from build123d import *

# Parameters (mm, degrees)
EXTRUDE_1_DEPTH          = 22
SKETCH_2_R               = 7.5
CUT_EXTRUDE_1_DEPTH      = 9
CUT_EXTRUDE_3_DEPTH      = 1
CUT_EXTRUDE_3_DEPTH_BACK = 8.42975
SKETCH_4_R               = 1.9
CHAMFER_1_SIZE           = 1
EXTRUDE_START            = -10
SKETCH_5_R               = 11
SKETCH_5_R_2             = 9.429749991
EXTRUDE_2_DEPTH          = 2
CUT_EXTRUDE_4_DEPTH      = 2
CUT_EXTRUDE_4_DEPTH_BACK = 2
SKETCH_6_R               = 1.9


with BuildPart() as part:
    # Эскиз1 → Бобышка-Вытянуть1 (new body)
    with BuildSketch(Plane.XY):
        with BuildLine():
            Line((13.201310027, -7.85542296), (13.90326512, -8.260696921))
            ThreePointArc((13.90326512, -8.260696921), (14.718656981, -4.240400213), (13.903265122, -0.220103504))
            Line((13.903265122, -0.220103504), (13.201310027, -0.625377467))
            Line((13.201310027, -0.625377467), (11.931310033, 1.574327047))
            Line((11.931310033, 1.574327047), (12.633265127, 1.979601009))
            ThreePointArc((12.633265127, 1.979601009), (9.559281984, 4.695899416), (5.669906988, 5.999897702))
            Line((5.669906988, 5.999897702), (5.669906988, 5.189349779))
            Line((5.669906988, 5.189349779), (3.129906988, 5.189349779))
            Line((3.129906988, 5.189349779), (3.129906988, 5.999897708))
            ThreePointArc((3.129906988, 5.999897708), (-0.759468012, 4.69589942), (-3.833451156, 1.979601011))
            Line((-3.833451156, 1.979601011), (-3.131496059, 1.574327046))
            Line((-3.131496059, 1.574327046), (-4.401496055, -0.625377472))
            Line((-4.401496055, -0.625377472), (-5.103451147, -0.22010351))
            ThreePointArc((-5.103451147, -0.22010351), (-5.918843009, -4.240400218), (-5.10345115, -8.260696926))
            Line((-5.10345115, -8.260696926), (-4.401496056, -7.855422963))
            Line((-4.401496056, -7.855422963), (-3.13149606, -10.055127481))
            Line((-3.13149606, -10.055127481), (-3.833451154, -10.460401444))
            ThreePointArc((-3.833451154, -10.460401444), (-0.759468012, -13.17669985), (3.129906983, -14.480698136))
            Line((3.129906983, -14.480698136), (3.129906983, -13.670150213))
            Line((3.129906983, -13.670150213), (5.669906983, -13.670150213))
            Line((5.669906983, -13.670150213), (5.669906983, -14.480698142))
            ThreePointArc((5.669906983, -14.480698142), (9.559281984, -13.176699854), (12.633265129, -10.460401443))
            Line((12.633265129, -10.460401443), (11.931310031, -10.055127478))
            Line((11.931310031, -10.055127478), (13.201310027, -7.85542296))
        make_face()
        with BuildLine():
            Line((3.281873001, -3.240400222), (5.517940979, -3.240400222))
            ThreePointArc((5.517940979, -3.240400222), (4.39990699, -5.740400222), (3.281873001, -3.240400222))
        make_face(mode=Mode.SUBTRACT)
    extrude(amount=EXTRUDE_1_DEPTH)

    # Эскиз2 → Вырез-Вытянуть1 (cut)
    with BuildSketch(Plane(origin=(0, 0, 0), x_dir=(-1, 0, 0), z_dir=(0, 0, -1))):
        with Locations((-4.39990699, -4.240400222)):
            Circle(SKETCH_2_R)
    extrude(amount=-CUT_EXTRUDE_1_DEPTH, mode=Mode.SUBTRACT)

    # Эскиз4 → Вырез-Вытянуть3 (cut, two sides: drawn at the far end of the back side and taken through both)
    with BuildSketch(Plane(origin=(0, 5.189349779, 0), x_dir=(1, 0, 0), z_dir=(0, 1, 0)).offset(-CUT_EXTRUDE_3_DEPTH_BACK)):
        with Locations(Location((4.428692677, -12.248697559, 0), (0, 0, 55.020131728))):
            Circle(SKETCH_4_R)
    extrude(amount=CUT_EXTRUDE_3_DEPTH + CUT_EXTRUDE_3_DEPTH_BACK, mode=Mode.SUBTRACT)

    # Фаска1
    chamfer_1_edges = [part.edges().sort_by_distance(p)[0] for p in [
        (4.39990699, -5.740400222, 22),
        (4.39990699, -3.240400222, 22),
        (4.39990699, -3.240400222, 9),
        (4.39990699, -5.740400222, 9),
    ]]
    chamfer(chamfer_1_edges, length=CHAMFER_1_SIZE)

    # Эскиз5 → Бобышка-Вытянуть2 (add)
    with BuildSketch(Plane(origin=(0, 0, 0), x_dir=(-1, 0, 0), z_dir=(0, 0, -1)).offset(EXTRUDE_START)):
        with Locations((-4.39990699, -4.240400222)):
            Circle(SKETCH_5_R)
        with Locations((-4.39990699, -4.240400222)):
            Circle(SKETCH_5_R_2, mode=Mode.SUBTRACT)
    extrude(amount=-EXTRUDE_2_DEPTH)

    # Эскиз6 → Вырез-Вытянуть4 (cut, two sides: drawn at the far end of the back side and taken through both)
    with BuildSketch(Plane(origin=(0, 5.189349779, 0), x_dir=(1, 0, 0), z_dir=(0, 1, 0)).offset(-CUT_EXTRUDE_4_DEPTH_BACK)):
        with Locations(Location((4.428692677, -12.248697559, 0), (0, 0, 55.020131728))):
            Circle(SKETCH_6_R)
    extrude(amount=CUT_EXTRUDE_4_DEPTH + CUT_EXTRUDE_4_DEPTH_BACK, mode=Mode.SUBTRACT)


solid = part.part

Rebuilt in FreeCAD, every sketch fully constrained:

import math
import FreeCAD as App
import Part
import Sketcher
from FreeCAD import Vector
Q = App.Units.Quantity


def edges_at(feature, points):
    """Names of the edges that pass closest to the given points."""
    edges = feature.Shape.Edges
    near = lambda p: min(range(len(edges)), key=lambda i: edges[i].distToShape(Part.Vertex(*p))[0])
    return sorted({f"Edge{near(p) + 1}" for p in points})

doc = App.newDocument("Part")
params = doc.addObject("Spreadsheet::Sheet", "Params")
for row, (alias, value) in enumerate([
    ("sketch1_radius", "1.5 mm"),
    ("sketch1_width", "2.54 mm"),
    ("sketch1_length", "2.54 mm"),
    ("pad1_length", "22 mm"),
    ("sketch2_diameter", "15 mm"),
    ("pocket1_length", "9 mm"),
    ("sketch3_diameter", "3.8 mm"),
    ("pocket2_length", "1 mm"),
    ("pocket2_length2", "8.42975 mm"),
    ("chamfer_size", "1 mm"),
    ("sketch4_diameter", "22 mm"),
    ("pad2_length", "2 mm"),
    ("sketch5_diameter", "3.8 mm"),
    ("pocket3_length", "2 mm"),
    ("pocket3_length2", "2 mm"),
], start=1):
    params.set(f"A{row}", alias)
    params.set(f"B{row}", "=" + value)
    params.setAlias(f"B{row}", alias)

body = doc.addObject("PartDesign::Body", "Body")

sketch1 = body.newObject("Sketcher::SketchObject", "Sketch")
sketch1.AttachmentSupport = (doc.getObject("XY_Plane"), [""])
sketch1.MapMode = "FlatFace"
sketch1.addGeometry([
    Part.LineSegment(Vector(13.20131, -7.855423, 0), Vector(13.903265, -8.260697, 0)),
    Part.ArcOfCircle(Part.Circle(Vector(4.399907, -4.2404, 0), Vector(0, 0, 1), 10.31875), math.radians(-22.930286), math.radians(22.930286)),
    Part.LineSegment(Vector(13.903265, -0.220104, 0), Vector(13.20131, -0.625377, 0)),
    Part.LineSegment(Vector(13.20131, -0.625377, 0), Vector(11.93131, 1.574327, 0)),
    Part.LineSegment(Vector(11.93131, 1.574327, 0), Vector(12.633265, 1.979601, 0)),
    Part.ArcOfCircle(Part.Circle(Vector(4.399907, -4.2404, 0), Vector(0, 0, 1), 10.31875), math.radians(37.069714), math.radians(82.930286)),
    Part.LineSegment(Vector(5.669907, 5.999898, 0), Vector(5.669907, 5.18935, 0)),
    Part.LineSegment(Vector(5.669907, 5.18935, 0), Vector(3.129907, 5.18935, 0)),
    Part.LineSegment(Vector(3.129907, 5.18935, 0), Vector(3.129907, 5.999898, 0)),
    Part.ArcOfCircle(Part.Circle(Vector(4.399907, -4.2404, 0), Vector(0, 0, 1), 10.31875), math.radians(97.069714), math.radians(142.930286)),
    Part.LineSegment(Vector(-3.833451, 1.979601, 0), Vector(-3.131496, 1.574327, 0)),
    Part.LineSegment(Vector(-3.131496, 1.574327, 0), Vector(-4.401496, -0.625377, 0)),
    Part.LineSegment(Vector(-4.401496, -0.625377, 0), Vector(-5.103451, -0.220104, 0)),
    Part.ArcOfCircle(Part.Circle(Vector(4.399907, -4.2404, 0), Vector(0, 0, 1), 10.31875), math.radians(157.069714), math.radians(202.930286)),
    Part.LineSegment(Vector(-5.103451, -8.260697, 0), Vector(-4.401496, -7.855423, 0)),
    Part.LineSegment(Vector(-4.401496, -7.855423, 0), Vector(-3.131496, -10.055127, 0)),
    Part.LineSegment(Vector(-3.131496, -10.055127, 0), Vector(-3.833451, -10.460401, 0)),
    Part.ArcOfCircle(Part.Circle(Vector(4.399907, -4.2404, 0), Vector(0, 0, 1), 10.31875), math.radians(-142.930286), math.radians(-97.069714)),
    Part.LineSegment(Vector(3.129907, -14.480698, 0), Vector(3.129907, -13.67015, 0)),
    Part.LineSegment(Vector(3.129907, -13.67015, 0), Vector(5.669907, -13.67015, 0)),
    Part.LineSegment(Vector(5.669907, -13.67015, 0), Vector(5.669907, -14.480698, 0)),
    Part.ArcOfCircle(Part.Circle(Vector(4.399907, -4.2404, 0), Vector(0, 0, 1), 10.31875), math.radians(-82.930286), math.radians(-37.069714)),
    Part.LineSegment(Vector(12.633265, -10.460401, 0), Vector(11.93131, -10.055127, 0)),
    Part.LineSegment(Vector(11.93131, -10.055127, 0), Vector(13.20131, -7.855423, 0)),
    Part.ArcOfCircle(Part.Circle(Vector(4.399907, -4.2404, 0), Vector(0, 0, 1), 1.5), math.radians(138.189685), math.radians(401.810315)),
    Part.LineSegment(Vector(3.281873, -3.2404, 0), Vector(5.517941, -3.2404, 0)),
], False)
sketch1.addConstraint([
    Sketcher.Constraint("Coincident", 0, 2, 1, 1),
    Sketcher.Constraint("Coincident", 1, 2, 2, 1),
    Sketcher.Constraint("Coincident", 2, 2, 3, 1),
    Sketcher.Constraint("Coincident", 3, 2, 4, 1),
    Sketcher.Constraint("Coincident", 4, 2, 5, 1),
    Sketcher.Constraint("Coincident", 5, 2, 6, 1),
    Sketcher.Constraint("Coincident", 6, 2, 7, 1),
    Sketcher.Constraint("Coincident", 7, 2, 8, 1),
    Sketcher.Constraint("Coincident", 8, 2, 9, 1),
    Sketcher.Constraint("Coincident", 9, 2, 10, 1),
    Sketcher.Constraint("Coincident", 10, 2, 11, 1),
    Sketcher.Constraint("Coincident", 11, 2, 12, 1),
    Sketcher.Constraint("Coincident", 12, 2, 13, 1),
    Sketcher.Constraint("Coincident", 13, 2, 14, 1),
    Sketcher.Constraint("Coincident", 14, 2, 15, 1),
    Sketcher.Constraint("Coincident", 15, 2, 16, 1),
    Sketcher.Constraint("Coincident", 16, 2, 17, 1),
    Sketcher.Constraint("Coincident", 17, 2, 18, 1),
    Sketcher.Constraint("Coincident", 18, 2, 19, 1),
    Sketcher.Constraint("Coincident", 19, 2, 20, 1),
    Sketcher.Constraint("Coincident", 20, 2, 21, 1),
    Sketcher.Constraint("Coincident", 21, 2, 22, 1),
    Sketcher.Constraint("Coincident", 22, 2, 23, 1),
    Sketcher.Constraint("Coincident", 23, 2, 0, 1),
    Sketcher.Constraint("Coincident", 24, 1, 25, 1),
    Sketcher.Constraint("Coincident", 25, 2, 24, 2),
    Sketcher.Constraint("Vertical", 6),
    Sketcher.Constraint("Horizontal", 7),
    Sketcher.Constraint("Vertical", 8),
    Sketcher.Constraint("Vertical", 18),
    Sketcher.Constraint("Horizontal", 19),
    Sketcher.Constraint("Vertical", 20),
    Sketcher.Constraint("Horizontal", 25),
    Sketcher.Constraint("Coincident", 5, 3, 1, 3),
    Sketcher.Constraint("Coincident", 9, 3, 1, 3),
    Sketcher.Constraint("Coincident", 13, 3, 1, 3),
    Sketcher.Constraint("Coincident", 17, 3, 1, 3),
    Sketcher.Constraint("Coincident", 21, 3, 1, 3),
    Sketcher.Constraint("Coincident", 24, 3, 1, 3),
    Sketcher.Constraint("Equal", 1, 5),
    Sketcher.Constraint("Equal", 5, 9),
    Sketcher.Constraint("Equal", 9, 13),
    Sketcher.Constraint("Equal", 13, 17),
    Sketcher.Constraint("Equal", 17, 21),
    Sketcher.Constraint("Perpendicular", 2, 3),
    Sketcher.Constraint("Perpendicular", 3, 4),
    Sketcher.Constraint("Parallel", 0, 10),
    Sketcher.Constraint("Perpendicular", 10, 11),
    Sketcher.Constraint("Perpendicular", 11, 12),
    Sketcher.Constraint("Parallel", 4, 14),
    Sketcher.Constraint("Perpendicular", 14, 15),
    Sketcher.Constraint("Perpendicular", 15, 16),
    Sketcher.Constraint("Parallel", 12, 22),
    Sketcher.Constraint("Perpendicular", 22, 23),
    Sketcher.Constraint("Horizontal", 5, 2, 8, 2),
    Sketcher.Constraint("Horizontal", 4, 2, 9, 2),
    Sketcher.Constraint("Horizontal", 3, 2, 10, 2),
    Sketcher.Constraint("Horizontal", 2, 2, 11, 2),
    Sketcher.Constraint("Horizontal", 1, 2, 12, 2),
    Sketcher.Constraint("Horizontal", 0, 2, 13, 2),
    Sketcher.Constraint("Horizontal", 17, 2, 20, 2),
    Sketcher.Constraint("Horizontal", 16, 2, 21, 2),
    Sketcher.Constraint("Horizontal", 15, 2, 22, 2),
    Sketcher.Constraint("Vertical", 0, 2, 1, 2),
    Sketcher.Constraint("Vertical", 11, 2, 14, 2),
    Sketcher.Constraint("Vertical", 10, 2, 15, 2),
    Sketcher.Constraint("Vertical", 8, 2, 17, 2),
    Sketcher.Constraint("Equal", 8, 18),
    Sketcher.Constraint("Equal", 2, 4),
    Sketcher.Constraint("Radius", 24, 1.5),
    Sketcher.Constraint("Angle", 0, Q("-30 deg")),
    Sketcher.Constraint("DistanceY", 1, 3, 24, 1, 1.0),
    Sketcher.Constraint("DistanceX", 7, 2, 7, 1, 2.54),
    Sketcher.Constraint("Distance", 3, 2.54),
    Sketcher.Constraint("Radius", 1, 10.31875),
    Sketcher.Constraint("DistanceY", 1, 3, -1, 1, 4.2404),
    Sketcher.Constraint("DistanceY", 6, 2, 6, 1, 0.810548),
    Sketcher.Constraint("DistanceX", -1, 1, 2, 2, 13.20131),
    Sketcher.Constraint("DistanceX", 9, 2, -1, 1, 3.833451),
])
sketch1.setExpression("Constraints[69]", "Params.sketch1_radius")
sketch1.setExpression("Constraints[72]", "Params.sketch1_width")
sketch1.setExpression("Constraints[73]", "Params.sketch1_length")
pad1 = body.newObject("PartDesign::Pad", "Pad")
pad1.Profile = sketch1
pad1.setExpression("Length", "Params.pad1_length")

sketch2 = body.newObject("Sketcher::SketchObject", "Sketch001")
sketch2.AttachmentSupport = (doc.getObject("XY_Plane"), [""])
sketch2.MapMode = "FlatFace"
sketch2.addGeometry(Part.Circle(Vector(4.399907, -4.2404, 0), Vector(0, 0, 1), 7.5), False)
sketch2.addConstraint([
    Sketcher.Constraint("Diameter", 0, 15.0),
    Sketcher.Constraint("DistanceY", 0, 3, -1, 1, 4.2404),
    Sketcher.Constraint("DistanceX", -1, 1, 0, 3, 4.399907),
])
sketch2.setExpression("Constraints[0]", "Params.sketch2_diameter")
pocket1 = body.newObject("PartDesign::Pocket", "Pocket")
pocket1.Profile = sketch2
pocket1.setExpression("Length", "Params.pocket1_length")
pocket1.Reversed = True

sketch3 = body.newObject("Sketcher::SketchObject", "Sketch002")
sketch3.AttachmentSupport = (doc.getObject("XZ_Plane"), [""])
sketch3.MapMode = "FlatFace"
sketch3.AttachmentOffset = App.Placement(Vector(0, 0, -5.18935), App.Rotation())
sketch3.addGeometry(Part.Circle(Vector(4.428693, 12.248698, 0), Vector(0, 0, 1), 1.9), False)
sketch3.addConstraint([
    Sketcher.Constraint("Diameter", 0, 3.8),
    Sketcher.Constraint("DistanceX", -1, 1, 0, 3, 4.428693),
    Sketcher.Constraint("DistanceY", -1, 1, 0, 3, 12.248698),
])
sketch3.setExpression("Constraints[0]", "Params.sketch3_diameter")
pocket2 = body.newObject("PartDesign::Pocket", "Pocket001")
pocket2.Profile = sketch3
pocket2.Type = "TwoLengths"
pocket2.setExpression("Length", "Params.pocket2_length")
pocket2.setExpression("Length2", "Params.pocket2_length2")
doc.recompute()

chamfer = body.newObject("PartDesign::Chamfer", "Chamfer")
chamfer.Base = (pocket2, edges_at(pocket2, [
    (4.4, -5.74, 22),
    (4.4, -3.24, 22),
    (4.4, -3.24, 9),
    (4.4, -5.74, 9),
]))
chamfer.setExpression("Size", "Params.chamfer_size")

sketch4 = body.newObject("Sketcher::SketchObject", "Sketch003")
sketch4.AttachmentSupport = (doc.getObject("XY_Plane"), [""])
sketch4.MapMode = "FlatFace"
sketch4.AttachmentOffset = App.Placement(Vector(0, 0, 10), App.Rotation())
sketch4.addGeometry([
    Part.Circle(Vector(4.399907, -4.2404, 0), Vector(0, 0, 1), 11),
    Part.Circle(Vector(4.399907, -4.2404, 0), Vector(0, 0, 1), 9.42975),
], False)
sketch4.addConstraint([
    Sketcher.Constraint("Coincident", 1, 3, 0, 3),
    Sketcher.Constraint("Diameter", 0, 22.0),
    Sketcher.Constraint("Diameter", 1, 18.8595),
    Sketcher.Constraint("DistanceY", 0, 3, -1, 1, 4.2404),
    Sketcher.Constraint("DistanceX", -1, 1, 0, 3, 4.399907),
])
sketch4.setExpression("Constraints[1]", "Params.sketch4_diameter")
pad2 = body.newObject("PartDesign::Pad", "Pad001")
pad2.Profile = sketch4
pad2.setExpression("Length", "Params.pad2_length")

sketch5 = body.newObject("Sketcher::SketchObject", "Sketch004")
sketch5.AttachmentSupport = (doc.getObject("XZ_Plane"), [""])
sketch5.MapMode = "FlatFace"
sketch5.AttachmentOffset = App.Placement(Vector(0, 0, -5.18935), App.Rotation())
sketch5.addGeometry(Part.Circle(Vector(4.428693, 12.248698, 0), Vector(0, 0, 1), 1.9), False)
sketch5.addConstraint([
    Sketcher.Constraint("Diameter", 0, 3.8),
    Sketcher.Constraint("DistanceX", -1, 1, 0, 3, 4.428693),
    Sketcher.Constraint("DistanceY", -1, 1, 0, 3, 12.248698),
])
sketch5.setExpression("Constraints[0]", "Params.sketch5_diameter")
pocket3 = body.newObject("PartDesign::Pocket", "Pocket002")
pocket3.Profile = sketch5
pocket3.Type = "TwoLengths"
pocket3.setExpression("Length", "Params.pocket3_length")
pocket3.setExpression("Length2", "Params.pocket3_length2")

doc.recompute()
